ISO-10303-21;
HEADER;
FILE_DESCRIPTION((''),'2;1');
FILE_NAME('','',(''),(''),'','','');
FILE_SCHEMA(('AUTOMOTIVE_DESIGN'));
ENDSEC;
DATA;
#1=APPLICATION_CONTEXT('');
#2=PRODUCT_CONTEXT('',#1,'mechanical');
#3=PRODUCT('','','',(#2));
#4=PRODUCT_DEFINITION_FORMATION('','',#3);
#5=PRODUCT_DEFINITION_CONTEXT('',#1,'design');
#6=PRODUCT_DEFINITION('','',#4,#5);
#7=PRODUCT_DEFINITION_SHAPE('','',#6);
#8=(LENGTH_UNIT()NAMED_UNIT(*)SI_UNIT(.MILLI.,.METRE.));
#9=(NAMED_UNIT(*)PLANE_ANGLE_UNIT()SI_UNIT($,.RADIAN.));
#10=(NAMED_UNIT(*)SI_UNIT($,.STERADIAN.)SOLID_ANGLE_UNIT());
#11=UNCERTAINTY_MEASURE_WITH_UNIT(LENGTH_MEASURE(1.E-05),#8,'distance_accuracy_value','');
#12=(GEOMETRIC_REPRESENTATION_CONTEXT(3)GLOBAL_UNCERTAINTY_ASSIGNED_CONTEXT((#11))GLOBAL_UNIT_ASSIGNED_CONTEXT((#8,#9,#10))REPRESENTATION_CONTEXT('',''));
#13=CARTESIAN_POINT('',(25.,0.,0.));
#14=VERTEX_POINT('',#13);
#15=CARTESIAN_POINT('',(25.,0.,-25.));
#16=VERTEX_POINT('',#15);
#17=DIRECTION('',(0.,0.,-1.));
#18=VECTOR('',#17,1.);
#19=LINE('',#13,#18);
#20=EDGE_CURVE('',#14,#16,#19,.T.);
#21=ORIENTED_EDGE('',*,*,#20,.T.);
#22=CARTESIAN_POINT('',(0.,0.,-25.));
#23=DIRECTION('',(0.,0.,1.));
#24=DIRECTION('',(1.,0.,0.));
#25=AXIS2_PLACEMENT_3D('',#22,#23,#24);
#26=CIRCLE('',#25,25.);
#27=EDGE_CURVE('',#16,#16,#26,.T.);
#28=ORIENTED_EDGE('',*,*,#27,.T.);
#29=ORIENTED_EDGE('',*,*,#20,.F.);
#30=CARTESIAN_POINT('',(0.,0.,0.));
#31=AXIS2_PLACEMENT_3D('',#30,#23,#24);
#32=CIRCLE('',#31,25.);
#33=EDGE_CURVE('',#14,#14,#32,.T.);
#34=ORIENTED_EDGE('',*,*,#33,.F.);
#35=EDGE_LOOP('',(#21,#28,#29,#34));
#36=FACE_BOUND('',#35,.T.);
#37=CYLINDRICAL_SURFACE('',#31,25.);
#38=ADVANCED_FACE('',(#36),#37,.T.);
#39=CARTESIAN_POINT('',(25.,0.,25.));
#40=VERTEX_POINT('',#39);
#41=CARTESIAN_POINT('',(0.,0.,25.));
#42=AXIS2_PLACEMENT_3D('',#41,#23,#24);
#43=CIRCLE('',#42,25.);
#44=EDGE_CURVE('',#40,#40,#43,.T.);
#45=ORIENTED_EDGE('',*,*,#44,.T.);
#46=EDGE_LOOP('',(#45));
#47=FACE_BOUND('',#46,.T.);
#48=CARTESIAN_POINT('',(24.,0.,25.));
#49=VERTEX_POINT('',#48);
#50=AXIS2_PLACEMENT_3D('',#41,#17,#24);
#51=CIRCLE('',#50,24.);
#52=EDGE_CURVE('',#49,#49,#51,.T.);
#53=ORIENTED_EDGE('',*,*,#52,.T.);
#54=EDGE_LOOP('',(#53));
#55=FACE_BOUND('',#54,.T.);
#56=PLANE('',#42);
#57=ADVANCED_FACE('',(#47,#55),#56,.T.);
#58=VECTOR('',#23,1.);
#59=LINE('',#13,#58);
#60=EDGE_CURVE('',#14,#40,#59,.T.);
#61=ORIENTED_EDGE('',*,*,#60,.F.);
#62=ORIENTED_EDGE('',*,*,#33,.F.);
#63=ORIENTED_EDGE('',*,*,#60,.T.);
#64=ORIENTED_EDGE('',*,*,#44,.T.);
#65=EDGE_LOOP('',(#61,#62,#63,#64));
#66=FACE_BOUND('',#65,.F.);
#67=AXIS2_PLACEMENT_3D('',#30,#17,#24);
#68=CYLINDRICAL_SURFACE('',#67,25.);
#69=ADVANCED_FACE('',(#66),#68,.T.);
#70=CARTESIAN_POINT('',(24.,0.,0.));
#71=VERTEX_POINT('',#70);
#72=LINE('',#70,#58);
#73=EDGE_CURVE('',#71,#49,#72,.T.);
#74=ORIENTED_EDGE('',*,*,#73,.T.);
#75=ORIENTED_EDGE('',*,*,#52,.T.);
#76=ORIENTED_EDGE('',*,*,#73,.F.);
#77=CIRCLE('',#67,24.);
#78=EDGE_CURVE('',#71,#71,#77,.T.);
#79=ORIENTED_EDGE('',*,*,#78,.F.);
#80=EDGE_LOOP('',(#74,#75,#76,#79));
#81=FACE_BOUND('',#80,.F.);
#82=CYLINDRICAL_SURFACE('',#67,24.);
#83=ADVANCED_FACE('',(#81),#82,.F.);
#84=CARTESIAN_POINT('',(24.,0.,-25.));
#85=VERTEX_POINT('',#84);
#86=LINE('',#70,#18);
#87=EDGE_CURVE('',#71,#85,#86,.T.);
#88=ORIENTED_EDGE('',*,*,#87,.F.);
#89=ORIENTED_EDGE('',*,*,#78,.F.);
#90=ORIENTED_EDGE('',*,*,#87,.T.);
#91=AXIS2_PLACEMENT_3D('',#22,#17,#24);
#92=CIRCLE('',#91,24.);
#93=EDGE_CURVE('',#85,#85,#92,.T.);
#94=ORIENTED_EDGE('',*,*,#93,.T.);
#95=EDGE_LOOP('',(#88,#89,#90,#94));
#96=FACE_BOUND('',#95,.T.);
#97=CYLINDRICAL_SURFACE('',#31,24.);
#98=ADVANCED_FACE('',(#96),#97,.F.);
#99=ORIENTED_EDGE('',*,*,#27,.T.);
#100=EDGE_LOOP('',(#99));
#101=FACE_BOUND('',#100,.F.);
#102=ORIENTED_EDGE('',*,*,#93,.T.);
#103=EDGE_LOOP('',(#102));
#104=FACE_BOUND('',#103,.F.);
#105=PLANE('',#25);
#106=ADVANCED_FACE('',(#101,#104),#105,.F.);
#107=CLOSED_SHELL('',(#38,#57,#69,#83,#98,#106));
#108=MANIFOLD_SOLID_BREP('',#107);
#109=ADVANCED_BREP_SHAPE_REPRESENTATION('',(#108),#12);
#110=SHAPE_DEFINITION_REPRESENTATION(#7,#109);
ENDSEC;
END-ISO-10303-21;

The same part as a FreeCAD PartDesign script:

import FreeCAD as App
import Part
import Sketcher

doc = App.newDocument("Part")
body = doc.addObject("PartDesign::Body", "Body")

sketch1 = doc.addObject("Sketcher::SketchObject", "Sketch")
body.addObject(sketch1)
sketch1.AttachmentSupport = (doc.XY_Plane, [""])
sketch1.MapMode = "FlatFace"
sketch1.addGeometry(Part.Circle(App.Vector(0, 0, 0), App.Vector(0, 0, 1), 25), False)
sketch1.addGeometry(Part.Circle(App.Vector(0, 0, 0), App.Vector(0, 0, 1), 24), False)
sketch1.addConstraint(Sketcher.Constraint("Coincident", 0, 3, -1, 1))
sketch1.addConstraint(Sketcher.Constraint("Coincident", 1, 3, -1, 1))
sketch1.addConstraint(Sketcher.Constraint("Diameter", 0, 50.0))
sketch1.addConstraint(Sketcher.Constraint("Diameter", 1, 48.0))
pad1 = doc.addObject("PartDesign::Pad", "Pad")
body.addObject(pad1)
pad1.Profile = sketch1
pad1.Type = "TwoLengths"
pad1.Length = 25
pad1.Length2 = 25
pad1.Reversed = True

doc.recompute()
